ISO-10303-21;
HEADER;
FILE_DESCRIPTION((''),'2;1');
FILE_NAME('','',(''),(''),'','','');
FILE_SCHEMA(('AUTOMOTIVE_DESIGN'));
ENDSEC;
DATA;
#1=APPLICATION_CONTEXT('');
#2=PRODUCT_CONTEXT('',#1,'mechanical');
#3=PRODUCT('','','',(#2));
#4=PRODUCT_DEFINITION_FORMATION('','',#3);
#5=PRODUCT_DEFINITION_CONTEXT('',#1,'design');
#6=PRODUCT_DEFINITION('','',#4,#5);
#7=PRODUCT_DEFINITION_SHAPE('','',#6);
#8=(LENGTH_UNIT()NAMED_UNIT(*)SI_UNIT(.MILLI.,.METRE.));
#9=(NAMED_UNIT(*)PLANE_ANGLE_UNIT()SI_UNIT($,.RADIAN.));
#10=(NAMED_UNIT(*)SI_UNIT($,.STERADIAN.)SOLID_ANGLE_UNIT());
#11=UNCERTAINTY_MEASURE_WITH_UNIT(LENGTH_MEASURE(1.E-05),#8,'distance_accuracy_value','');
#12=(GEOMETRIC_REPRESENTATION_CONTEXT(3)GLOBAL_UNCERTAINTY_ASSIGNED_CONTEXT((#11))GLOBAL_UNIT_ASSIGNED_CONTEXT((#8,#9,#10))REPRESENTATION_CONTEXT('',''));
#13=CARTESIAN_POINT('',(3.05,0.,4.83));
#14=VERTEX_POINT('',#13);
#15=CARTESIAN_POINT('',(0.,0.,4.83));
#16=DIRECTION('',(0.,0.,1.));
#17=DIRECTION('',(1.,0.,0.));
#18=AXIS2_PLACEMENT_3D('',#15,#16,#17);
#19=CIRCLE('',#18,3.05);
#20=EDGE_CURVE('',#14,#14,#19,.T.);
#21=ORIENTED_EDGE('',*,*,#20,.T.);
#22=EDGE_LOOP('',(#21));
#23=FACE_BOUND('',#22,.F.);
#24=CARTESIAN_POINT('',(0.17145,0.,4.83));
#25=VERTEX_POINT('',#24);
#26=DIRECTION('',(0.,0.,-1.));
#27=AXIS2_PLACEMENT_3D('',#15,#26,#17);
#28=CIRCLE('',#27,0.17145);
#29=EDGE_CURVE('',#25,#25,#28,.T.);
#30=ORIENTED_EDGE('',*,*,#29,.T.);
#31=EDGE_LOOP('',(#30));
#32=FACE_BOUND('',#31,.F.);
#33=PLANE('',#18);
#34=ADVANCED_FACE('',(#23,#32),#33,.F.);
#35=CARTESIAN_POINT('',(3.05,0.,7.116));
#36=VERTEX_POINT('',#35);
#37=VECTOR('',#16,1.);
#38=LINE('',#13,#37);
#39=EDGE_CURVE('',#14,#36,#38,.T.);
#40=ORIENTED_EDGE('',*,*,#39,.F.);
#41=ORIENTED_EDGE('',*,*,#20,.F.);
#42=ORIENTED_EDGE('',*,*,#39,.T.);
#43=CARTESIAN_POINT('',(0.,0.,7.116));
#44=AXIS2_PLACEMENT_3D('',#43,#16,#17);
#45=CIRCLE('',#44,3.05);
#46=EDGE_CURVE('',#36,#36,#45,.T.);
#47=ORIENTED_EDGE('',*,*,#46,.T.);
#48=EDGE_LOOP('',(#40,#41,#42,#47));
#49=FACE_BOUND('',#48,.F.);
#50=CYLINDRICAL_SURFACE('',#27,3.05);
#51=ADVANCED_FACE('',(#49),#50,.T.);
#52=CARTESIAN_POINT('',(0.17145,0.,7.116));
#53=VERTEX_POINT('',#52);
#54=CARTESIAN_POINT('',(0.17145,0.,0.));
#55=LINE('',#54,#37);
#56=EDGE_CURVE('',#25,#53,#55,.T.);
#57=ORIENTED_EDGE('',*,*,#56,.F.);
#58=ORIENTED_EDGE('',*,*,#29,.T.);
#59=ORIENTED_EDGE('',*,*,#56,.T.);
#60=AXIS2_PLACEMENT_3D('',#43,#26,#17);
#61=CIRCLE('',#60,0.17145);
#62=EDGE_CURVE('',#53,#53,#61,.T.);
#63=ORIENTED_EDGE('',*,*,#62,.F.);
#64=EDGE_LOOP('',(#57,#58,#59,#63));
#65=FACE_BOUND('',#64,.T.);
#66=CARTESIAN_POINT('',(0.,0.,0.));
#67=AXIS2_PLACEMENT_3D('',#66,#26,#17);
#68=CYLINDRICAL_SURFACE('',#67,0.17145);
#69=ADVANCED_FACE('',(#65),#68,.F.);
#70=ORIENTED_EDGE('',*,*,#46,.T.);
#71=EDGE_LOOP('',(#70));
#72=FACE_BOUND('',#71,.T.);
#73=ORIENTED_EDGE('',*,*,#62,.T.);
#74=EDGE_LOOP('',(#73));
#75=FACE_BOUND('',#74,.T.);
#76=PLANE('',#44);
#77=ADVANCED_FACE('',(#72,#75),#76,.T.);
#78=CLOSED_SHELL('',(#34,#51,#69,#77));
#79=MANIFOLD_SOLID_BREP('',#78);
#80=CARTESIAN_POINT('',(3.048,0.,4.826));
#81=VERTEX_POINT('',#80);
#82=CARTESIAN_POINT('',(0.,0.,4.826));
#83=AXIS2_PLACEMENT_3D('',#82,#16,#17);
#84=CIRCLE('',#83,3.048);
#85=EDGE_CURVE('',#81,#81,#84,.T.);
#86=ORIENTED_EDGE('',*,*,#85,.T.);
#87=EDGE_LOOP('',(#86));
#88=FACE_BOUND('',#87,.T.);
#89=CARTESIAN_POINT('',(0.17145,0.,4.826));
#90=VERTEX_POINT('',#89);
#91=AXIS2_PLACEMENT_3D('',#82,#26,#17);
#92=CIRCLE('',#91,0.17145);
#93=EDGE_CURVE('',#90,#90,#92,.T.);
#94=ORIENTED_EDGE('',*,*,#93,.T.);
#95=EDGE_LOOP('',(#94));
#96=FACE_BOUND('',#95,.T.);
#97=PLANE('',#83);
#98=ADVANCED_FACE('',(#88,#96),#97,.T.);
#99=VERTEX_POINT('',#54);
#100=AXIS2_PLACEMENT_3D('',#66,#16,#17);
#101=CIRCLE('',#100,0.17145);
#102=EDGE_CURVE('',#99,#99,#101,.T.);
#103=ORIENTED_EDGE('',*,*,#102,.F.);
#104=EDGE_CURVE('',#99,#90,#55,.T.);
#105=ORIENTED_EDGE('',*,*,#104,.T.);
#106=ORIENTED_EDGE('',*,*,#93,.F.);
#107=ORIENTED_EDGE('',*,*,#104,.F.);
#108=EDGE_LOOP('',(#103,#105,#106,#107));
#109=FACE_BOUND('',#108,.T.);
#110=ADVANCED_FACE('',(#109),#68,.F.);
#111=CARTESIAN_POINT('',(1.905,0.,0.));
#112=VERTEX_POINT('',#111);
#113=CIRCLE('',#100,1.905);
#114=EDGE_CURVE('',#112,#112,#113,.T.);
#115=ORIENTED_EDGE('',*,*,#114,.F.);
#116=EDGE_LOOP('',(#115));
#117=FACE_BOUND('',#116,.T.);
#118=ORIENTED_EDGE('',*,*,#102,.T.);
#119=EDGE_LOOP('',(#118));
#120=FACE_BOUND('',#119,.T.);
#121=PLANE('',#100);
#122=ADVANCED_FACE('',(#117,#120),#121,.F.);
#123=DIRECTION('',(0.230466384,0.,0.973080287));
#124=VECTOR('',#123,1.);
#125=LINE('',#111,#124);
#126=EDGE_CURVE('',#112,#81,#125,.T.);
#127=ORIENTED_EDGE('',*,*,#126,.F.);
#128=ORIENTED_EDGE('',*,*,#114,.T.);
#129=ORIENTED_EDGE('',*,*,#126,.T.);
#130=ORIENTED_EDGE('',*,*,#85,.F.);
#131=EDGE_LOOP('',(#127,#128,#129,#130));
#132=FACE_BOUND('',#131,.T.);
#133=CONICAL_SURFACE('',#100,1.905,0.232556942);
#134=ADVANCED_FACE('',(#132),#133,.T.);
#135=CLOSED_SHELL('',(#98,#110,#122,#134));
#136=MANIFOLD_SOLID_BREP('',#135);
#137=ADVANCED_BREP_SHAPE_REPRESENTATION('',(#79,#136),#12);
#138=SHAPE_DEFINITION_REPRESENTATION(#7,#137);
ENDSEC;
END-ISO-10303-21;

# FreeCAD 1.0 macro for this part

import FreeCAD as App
import Part
import Sketcher
from FreeCAD import Vector
Q = App.Units.Quantity


def add_polygon(sketch, points):
    """Adds a closed chain of lines whose ends are joined by coincident constraints."""
    first, n = sketch.GeometryCount, len(points)
    for a, b in zip(points, points[1:] + points[:1]):
        sketch.addGeometry(Part.LineSegment(App.Vector(*a, 0), App.Vector(*b, 0)), False)
    for i in range(n):
        sketch.addConstraint(Sketcher.Constraint("Coincident", first + i, 2, first + (i + 1) % n, 1))

doc = App.newDocument("Part")
body = doc.addObject("PartDesign::Body", "Body")

# Sketch on XY plane
sketch1 = doc.addObject("Sketcher::SketchObject", "Sketch")
body.addObject(sketch1)
sketch1.AttachmentSupport = (doc.XY_Plane, [""])
sketch1.MapMode = "FlatFace"
sketch1.addGeometry(Part.Circle(Vector(0, 0, 0), Vector(0, 0, 1), 0.17), False)
sketch1.addConstraint(Sketcher.Constraint("Coincident", 0, 3, -1, 1))
sketch1.addConstraint(Sketcher.Constraint("Diameter", 0, Q("0.0135 in")))
pad1 = doc.addObject("PartDesign::Pad", "Pad")
body.addObject(pad1)
pad1.Profile = sketch1
pad1.Length = 7.12
body2 = doc.addObject("PartDesign::Body", "Body001")

# Sketch on XY plane
sketch2 = doc.addObject("Sketcher::SketchObject", "Sketch001")
body2.addObject(sketch2)
sketch2.AttachmentSupport = (doc.getObject("XY_Plane001"), [""])
sketch2.MapMode = "FlatFace"
sketch2.AttachmentOffset = App.Placement(Vector(0, 0, 4.83), App.Rotation())
sketch2.addGeometry(Part.Circle(Vector(0, 0, 0), Vector(0, 0, 1), 3), False)
sketch2.addConstraint(Sketcher.Constraint("Coincident", 0, 3, -1, 1))
sketch2.addConstraint(Sketcher.Constraint("Diameter", 0, 6.1))
pad2 = doc.addObject("PartDesign::Pad", "Pad001")
body2.addObject(pad2)
pad2.Profile = sketch2
pad2.Length = Q("0.09 in")
body3 = doc.addObject("PartDesign::Body", "Body002")
body3.AllowCompound = True

# Sketch on XZ plane
sketch3 = doc.addObject("Sketcher::SketchObject", "Sketch002")
body3.addObject(sketch3)
sketch3.AttachmentSupport = (doc.getObject("XZ_Plane002"), [""])
sketch3.MapMode = "FlatFace"
add_polygon(sketch3, [(0, 0), (1.9, 0), (3, 4.8), (0, 4.8)])  # lines 0-3
sketch3.addConstraint(Sketcher.Constraint("Horizontal", 0))
sketch3.addConstraint(Sketcher.Constraint("Horizontal", 2))
sketch3.addConstraint(Sketcher.Constraint("Vertical", 3))
sketch3.addConstraint(Sketcher.Constraint("Coincident", 3, 2, -1, 1))
sketch3.addConstraint(Sketcher.Constraint("DistanceX", 2, 2, 2, 1, Q("0.12 in")))
sketch3.addConstraint(Sketcher.Constraint("DistanceY", 3, 2, 3, 1, Q("0.19 in")))
sketch3.addConstraint(Sketcher.Constraint("DistanceX", 0, 1, 0, 2, Q("0.075 in")))
revolution = doc.addObject("PartDesign::Revolution", "Revolution")
body3.addObject(revolution)
revolution.Profile = sketch3
revolution.ReferenceAxis = (sketch3, ["V_Axis"])
revolution.Angle = 360
doc.recompute()

boolean = doc.addObject("PartDesign::Boolean", "Boolean")
body3.addObject(boolean)
boolean.Type = "Fuse"
boolean.addObjects([body2])
doc.recompute()

boolean2 = doc.addObject("PartDesign::Boolean", "Boolean001")
body3.addObject(boolean2)
boolean2.Type = "Cut"
boolean2.addObjects([body])

doc.recompute()
